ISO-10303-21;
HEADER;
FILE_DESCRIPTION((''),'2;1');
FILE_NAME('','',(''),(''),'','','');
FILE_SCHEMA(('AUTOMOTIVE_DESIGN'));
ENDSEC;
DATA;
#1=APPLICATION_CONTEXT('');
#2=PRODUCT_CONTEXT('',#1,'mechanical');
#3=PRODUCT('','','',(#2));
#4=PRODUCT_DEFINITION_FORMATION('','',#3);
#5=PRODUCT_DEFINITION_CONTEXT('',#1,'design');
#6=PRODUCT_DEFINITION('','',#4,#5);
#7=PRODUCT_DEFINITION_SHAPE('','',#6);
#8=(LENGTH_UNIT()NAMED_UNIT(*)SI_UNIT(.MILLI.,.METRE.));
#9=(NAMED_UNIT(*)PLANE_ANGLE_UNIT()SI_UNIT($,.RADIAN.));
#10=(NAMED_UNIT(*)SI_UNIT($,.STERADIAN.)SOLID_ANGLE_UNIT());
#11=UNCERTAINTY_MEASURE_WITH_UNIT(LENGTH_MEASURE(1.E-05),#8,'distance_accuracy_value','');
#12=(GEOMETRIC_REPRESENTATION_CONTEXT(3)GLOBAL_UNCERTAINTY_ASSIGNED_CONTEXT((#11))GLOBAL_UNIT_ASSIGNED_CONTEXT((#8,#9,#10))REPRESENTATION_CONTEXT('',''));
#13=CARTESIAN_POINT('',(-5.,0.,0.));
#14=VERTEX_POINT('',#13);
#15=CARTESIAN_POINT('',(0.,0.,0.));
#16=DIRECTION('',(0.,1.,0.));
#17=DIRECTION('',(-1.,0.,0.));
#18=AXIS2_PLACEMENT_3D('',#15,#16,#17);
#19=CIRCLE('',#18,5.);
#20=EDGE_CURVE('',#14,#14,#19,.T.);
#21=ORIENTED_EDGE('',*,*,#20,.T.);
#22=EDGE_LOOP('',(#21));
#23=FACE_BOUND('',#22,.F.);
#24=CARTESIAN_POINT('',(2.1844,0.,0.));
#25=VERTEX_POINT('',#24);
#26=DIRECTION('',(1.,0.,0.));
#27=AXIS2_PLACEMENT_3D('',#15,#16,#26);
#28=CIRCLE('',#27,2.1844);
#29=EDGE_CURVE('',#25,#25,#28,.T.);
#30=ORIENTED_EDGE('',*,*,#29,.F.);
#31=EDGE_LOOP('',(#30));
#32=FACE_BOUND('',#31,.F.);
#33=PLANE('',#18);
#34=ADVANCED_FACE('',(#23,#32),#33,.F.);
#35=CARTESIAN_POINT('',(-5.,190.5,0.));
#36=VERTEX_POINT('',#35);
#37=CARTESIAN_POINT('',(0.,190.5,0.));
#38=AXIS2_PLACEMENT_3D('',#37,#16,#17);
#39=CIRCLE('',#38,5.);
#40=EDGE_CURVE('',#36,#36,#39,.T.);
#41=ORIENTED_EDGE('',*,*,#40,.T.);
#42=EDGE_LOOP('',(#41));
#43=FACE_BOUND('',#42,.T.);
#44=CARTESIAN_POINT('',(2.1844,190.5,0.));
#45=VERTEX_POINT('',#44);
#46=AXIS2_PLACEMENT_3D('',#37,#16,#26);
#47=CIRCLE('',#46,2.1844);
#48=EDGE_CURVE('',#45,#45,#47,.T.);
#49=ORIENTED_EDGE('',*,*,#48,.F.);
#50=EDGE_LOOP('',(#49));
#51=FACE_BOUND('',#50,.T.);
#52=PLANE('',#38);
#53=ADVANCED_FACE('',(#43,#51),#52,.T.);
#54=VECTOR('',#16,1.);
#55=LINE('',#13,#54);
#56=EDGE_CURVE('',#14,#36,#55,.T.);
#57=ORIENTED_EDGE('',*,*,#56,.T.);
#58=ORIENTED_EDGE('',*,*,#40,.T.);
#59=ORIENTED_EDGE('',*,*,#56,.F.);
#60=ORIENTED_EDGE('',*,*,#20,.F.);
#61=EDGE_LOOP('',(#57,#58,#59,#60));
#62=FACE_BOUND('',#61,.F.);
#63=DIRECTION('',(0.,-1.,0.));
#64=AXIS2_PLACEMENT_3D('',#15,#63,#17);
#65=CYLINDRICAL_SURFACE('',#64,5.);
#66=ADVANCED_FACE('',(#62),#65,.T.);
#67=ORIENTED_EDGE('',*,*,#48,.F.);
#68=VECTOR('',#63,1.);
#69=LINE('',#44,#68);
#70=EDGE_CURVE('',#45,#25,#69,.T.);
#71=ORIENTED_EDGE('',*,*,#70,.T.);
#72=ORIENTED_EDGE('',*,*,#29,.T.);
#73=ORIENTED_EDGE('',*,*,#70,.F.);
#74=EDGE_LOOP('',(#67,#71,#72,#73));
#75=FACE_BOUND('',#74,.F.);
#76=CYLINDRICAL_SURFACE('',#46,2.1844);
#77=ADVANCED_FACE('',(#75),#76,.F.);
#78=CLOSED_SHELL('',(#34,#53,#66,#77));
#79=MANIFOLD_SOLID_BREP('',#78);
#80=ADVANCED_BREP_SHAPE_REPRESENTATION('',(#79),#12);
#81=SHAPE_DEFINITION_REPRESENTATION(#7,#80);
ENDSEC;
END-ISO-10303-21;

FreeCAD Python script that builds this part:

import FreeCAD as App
import Part
import Sketcher
Q = App.Units.Quantity

doc = App.newDocument("Part")
body = doc.addObject("PartDesign::Body", "Body")

# Sketch on XZ plane
sketch1 = body.newObject("Sketcher::SketchObject", "Sketch")
sketch1.AttachmentSupport = (doc.getObject("XZ_Plane"), [""])
sketch1.MapMode = "FlatFace"
sketch1.addGeometry(Part.Circle(App.Vector(0, 0, 0), App.Vector(0, 0, 1), 5), False)
sketch1.addConstraint([
    Sketcher.Constraint("Coincident", 0, 3, -1, 1),
    Sketcher.Constraint("Diameter", 0, Q("0.3937 in")),
])
pad1 = body.newObject("PartDesign::Pad", "Pad")
pad1.Profile = sketch1
pad1.Length = Q("7.5 in")
pad1.Reversed = True

# Sketch on XZ plane
sketch2 = body.newObject("Sketcher::SketchObject", "Sketch001")
sketch2.AttachmentSupport = (doc.getObject("XZ_Plane"), [""])
sketch2.MapMode = "FlatFace"
sketch2.AttachmentOffset = App.Placement(App.Vector(0, 0, -7.5 * 25.4), App.Rotation())
sketch2.addGeometry(Part.Circle(App.Vector(0, 0, 0), App.Vector(0, 0, 1), 2.2), False)
sketch2.addConstraint([
    Sketcher.Constraint("Coincident", 0, 3, -1, 1),
    Sketcher.Constraint("Diameter", 0, Q("0.172 in")),
])
pocket1 = body.newObject("PartDesign::Pocket", "Pocket")
pocket1.Profile = sketch2
pocket1.Length = Q("7.5 in")
pocket1.Reversed = True

doc.recompute()
